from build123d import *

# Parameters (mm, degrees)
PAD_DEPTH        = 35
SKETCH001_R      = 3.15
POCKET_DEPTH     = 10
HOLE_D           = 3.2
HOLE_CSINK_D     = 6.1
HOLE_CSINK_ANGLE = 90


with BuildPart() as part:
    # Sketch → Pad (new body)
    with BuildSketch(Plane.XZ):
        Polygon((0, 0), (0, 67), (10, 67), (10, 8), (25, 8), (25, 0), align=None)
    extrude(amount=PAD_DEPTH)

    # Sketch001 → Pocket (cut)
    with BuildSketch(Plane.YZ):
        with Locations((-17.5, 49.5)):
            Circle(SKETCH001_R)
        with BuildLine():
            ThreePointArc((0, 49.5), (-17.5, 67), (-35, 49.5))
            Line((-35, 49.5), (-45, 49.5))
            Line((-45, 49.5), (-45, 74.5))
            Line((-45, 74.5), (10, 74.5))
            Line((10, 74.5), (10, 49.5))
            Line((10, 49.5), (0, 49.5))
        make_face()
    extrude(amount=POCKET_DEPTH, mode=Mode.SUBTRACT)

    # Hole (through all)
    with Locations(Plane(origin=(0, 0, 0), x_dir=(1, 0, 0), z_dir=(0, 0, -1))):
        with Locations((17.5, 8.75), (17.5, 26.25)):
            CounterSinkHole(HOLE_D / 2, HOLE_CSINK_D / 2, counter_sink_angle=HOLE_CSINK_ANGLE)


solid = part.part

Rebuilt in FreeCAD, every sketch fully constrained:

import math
import FreeCAD as App
import Part
import Sketcher

V = App.Vector
Q = App.Units.Quantity


def add_polygon(sketch, points):
    """Adds a closed chain of lines whose ends are joined by coincident constraints."""
    first, n = sketch.GeometryCount, len(points)
    for a, b in zip(points, points[1:] + points[:1]):
        sketch.addGeometry(Part.LineSegment(App.Vector(*a, 0), App.Vector(*b, 0)), False)
    for i in range(n):
        sketch.addConstraint(Sketcher.Constraint("Coincident", first + i, 2, first + (i + 1) % n, 1))

doc = App.newDocument("Part")
params = doc.addObject("Spreadsheet::Sheet", "Params")
for row, (alias, value) in enumerate([
    ("sketch1_width", "25 mm"),
    ("sketch1_width2", "15 mm"),
    ("sketch1_height", "67 mm"),
    ("sketch1_height2", "8 mm"),
    ("pad1_length", "35 mm"),
    ("sketch2_diameter", "6.3 mm"),
    ("sketch2_radius", "17.5 mm"),
    ("sketch2_width", "10 mm"),
    ("sketch2_height", "25 mm"),
    ("pocket1_length", "10 mm"),
    ("sketch3_diameter", "3.2 mm"),
    ("hole_diameter", "3.2 mm"),
    ("hole_csink_diameter", "6.1 mm"),
], start=1):
    params.set(f"A{row}", alias)
    params.set(f"B{row}", "=" + value)
    params.setAlias(f"B{row}", alias)

body = doc.addObject("PartDesign::Body", "Body")

# Sketch on XZ plane
sketch1 = body.newObject("Sketcher::SketchObject", "Sketch")
sketch1.AttachmentSupport = (doc.getObject("XZ_Plane"), [""])
sketch1.MapMode = "FlatFace"
add_polygon(sketch1, [(0, 67), (0, 0), (25, 0), (25, 8), (10, 8), (10, 67)])  # lines 0-5
sketch1.addConstraint([
    Sketcher.Constraint("Vertical", 0),
    Sketcher.Constraint("Horizontal", 1),
    Sketcher.Constraint("Vertical", 2),
    Sketcher.Constraint("Horizontal", 3),
    Sketcher.Constraint("Vertical", 4),
    Sketcher.Constraint("Horizontal", 5),
    Sketcher.Constraint("Coincident", 0, 2, -1, 1),
    Sketcher.Constraint("DistanceX", 1, 1, 1, 2, Q("25 mm")),
    Sketcher.Constraint("DistanceX", 3, 2, 3, 1, Q("15 mm")),
    Sketcher.Constraint("DistanceY", 0, 2, 0, 1, Q("67 mm")),
    Sketcher.Constraint("DistanceY", 2, 1, 2, 2, Q("8 mm")),
])
sketch1.setExpression("Constraints[13]", "Params.sketch1_width")
sketch1.setExpression("Constraints[14]", "Params.sketch1_width2")
sketch1.setExpression("Constraints[15]", "Params.sketch1_height")
sketch1.setExpression("Constraints[16]", "Params.sketch1_height2")
pad1 = body.newObject("PartDesign::Pad", "Pad")
pad1.Profile = sketch1
pad1.setExpression("Length", "Params.pad1_length")

# Sketch on YZ plane
sketch2 = body.newObject("Sketcher::SketchObject", "Sketch001")
sketch2.AttachmentSupport = (doc.getObject("YZ_Plane"), [""])
sketch2.MapMode = "FlatFace"
sketch2.addGeometry([
    Part.Circle(V(-17.5, 49.5, 0), V(0, 0, 1), 3.1),  # 0
    Part.ArcOfCircle(Part.Circle(V(-17.5, 49.5, 0), V(0, 0, 1), 17.5), math.radians(0), math.radians(180)),  # 1
    Part.LineSegment(V(0, 49.5, 0), V(10, 49.5, 0)),  # 2
    Part.LineSegment(V(10, 49.5, 0), V(10, 74.5, 0)),  # 3
    Part.LineSegment(V(10, 74.5, 0), V(-45, 74.5, 0)),  # 4
    Part.LineSegment(V(-45, 74.5, 0), V(-45, 49.5, 0)),  # 5
    Part.LineSegment(V(-45, 49.5, 0), V(-35, 49.5, 0)),  # 6
], False)
sketch2.addConstraint([
    Sketcher.Constraint("Coincident", 1, 1, 2, 1),
    Sketcher.Constraint("Coincident", 2, 2, 3, 1),
    Sketcher.Constraint("Coincident", 3, 2, 4, 1),
    Sketcher.Constraint("Coincident", 4, 2, 5, 1),
    Sketcher.Constraint("Coincident", 5, 2, 6, 1),
    Sketcher.Constraint("Coincident", 6, 2, 1, 2),
    Sketcher.Constraint("Horizontal", 2),
    Sketcher.Constraint("Vertical", 3),
    Sketcher.Constraint("Horizontal", 4),
    Sketcher.Constraint("Vertical", 5),
    Sketcher.Constraint("Horizontal", 6),
    Sketcher.Constraint("Coincident", 1, 3, 0, 3),
    Sketcher.Constraint("PointOnObject", 1, 1, -2),
    Sketcher.Constraint("Horizontal", 0, 3, 1, 1),
    Sketcher.Constraint("Horizontal", 2, 2, 5, 2),
    Sketcher.Constraint("Equal", 2, 6),
    Sketcher.Constraint("Diameter", 0, Q("6.3 mm")),
    Sketcher.Constraint("Radius", 1, Q("17.5 mm")),
    Sketcher.Constraint("DistanceX", 2, 1, 2, 2, Q("10 mm")),
    Sketcher.Constraint("DistanceY", 3, 1, 3, 2, Q("25 mm")),
    Sketcher.Constraint("DistanceY", -1, 1, 0, 3, Q("49.5 mm")),
])
sketch2.setExpression("Constraints[16]", "Params.sketch2_diameter")
sketch2.setExpression("Constraints[17]", "Params.sketch2_radius")
sketch2.setExpression("Constraints[18]", "Params.sketch2_width")
sketch2.setExpression("Constraints[19]", "Params.sketch2_height")
pocket1 = body.newObject("PartDesign::Pocket", "Pocket")
pocket1.Profile = sketch2
pocket1.setExpression("Length", "Params.pocket1_length")
pocket1.Reversed = True

# Sketch on XY plane
sketch3 = body.newObject("Sketcher::SketchObject", "Sketch002")
sketch3.AttachmentSupport = (doc.getObject("XY_Plane"), [""])
sketch3.MapMode = "FlatFace"
sketch3.addGeometry([
    Part.Circle(V(17.5, -8.8, 0), V(0, 0, 1), 1.6),
    Part.Circle(V(17.5, -26.2, 0), V(0, 0, 1), 1.6),
], False)
sketch3.addConstraint([
    Sketcher.Constraint("Equal", 0, 1),
    Sketcher.Constraint("Vertical", 0, 3, 1, 3),
    Sketcher.Constraint("Diameter", 0, Q("3.2 mm")),
    Sketcher.Constraint("DistanceX", -1, 1, 0, 3, Q("17.5 mm")),
    Sketcher.Constraint("DistanceY", 1, 3, 0, 3, Q("17.5 mm")),
    Sketcher.Constraint("DistanceY", 0, 3, -1, 1, Q("8.75 mm")),
])
sketch3.setExpression("Constraints[2]", "Params.sketch3_diameter")
doc.recompute()
hole = body.newObject("PartDesign::Hole", "Hole")
hole.Profile = sketch3
hole.ThreadType = "None"
hole.setExpression("Diameter", "Params.hole_diameter")
hole.DepthType = "ThroughAll"
hole.HoleCutType = "Countersink"
hole.setExpression("HoleCutDiameter", "Params.hole_csink_diameter")
hole.HoleCutCountersinkAngle = 90
hole.Reversed = True

doc.recompute()
